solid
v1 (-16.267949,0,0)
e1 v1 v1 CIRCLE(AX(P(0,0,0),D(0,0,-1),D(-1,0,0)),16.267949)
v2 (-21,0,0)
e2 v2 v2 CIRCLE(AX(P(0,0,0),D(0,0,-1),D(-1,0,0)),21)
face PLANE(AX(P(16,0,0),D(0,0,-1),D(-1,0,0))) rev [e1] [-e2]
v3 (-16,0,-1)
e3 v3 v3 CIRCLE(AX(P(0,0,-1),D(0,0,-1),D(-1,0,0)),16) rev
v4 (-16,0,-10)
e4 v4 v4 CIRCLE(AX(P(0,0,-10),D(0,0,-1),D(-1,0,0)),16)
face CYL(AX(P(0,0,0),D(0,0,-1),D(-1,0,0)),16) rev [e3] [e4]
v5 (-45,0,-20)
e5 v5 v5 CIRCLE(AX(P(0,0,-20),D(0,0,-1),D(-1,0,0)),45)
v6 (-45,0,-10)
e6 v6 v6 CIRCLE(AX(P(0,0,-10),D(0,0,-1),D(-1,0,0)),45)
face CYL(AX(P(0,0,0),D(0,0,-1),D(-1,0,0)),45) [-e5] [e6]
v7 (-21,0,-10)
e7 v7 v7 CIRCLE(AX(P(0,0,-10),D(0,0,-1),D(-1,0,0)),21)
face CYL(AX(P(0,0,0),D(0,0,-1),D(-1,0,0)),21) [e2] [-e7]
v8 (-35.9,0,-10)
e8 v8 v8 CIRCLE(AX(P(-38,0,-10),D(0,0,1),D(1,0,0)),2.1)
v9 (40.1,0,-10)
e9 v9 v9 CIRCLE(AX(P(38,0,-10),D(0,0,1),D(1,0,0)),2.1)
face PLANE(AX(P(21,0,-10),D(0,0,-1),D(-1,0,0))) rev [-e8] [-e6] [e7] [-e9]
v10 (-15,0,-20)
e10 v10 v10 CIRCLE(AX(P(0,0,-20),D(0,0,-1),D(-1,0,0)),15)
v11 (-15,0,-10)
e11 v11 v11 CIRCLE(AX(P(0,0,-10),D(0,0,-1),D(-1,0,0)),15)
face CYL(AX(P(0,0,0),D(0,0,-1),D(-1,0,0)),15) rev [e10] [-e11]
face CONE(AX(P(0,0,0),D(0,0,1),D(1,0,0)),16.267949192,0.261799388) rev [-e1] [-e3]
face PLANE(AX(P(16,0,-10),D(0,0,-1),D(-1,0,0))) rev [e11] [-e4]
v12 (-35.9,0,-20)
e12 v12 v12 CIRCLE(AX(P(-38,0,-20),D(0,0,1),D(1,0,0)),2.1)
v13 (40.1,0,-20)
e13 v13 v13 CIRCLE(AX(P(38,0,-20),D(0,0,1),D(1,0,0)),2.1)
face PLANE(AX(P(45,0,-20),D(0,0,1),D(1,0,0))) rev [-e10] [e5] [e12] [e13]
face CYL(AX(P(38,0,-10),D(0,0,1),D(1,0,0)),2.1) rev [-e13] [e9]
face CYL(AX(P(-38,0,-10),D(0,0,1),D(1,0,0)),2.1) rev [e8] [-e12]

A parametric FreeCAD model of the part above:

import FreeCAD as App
import Part
import Sketcher
Q = App.Units.Quantity


def edges_at(feature, points):
    """Names of the edges that pass closest to the given points."""
    edges = feature.Shape.Edges
    near = lambda p: min(range(len(edges)), key=lambda i: edges[i].distToShape(Part.Vertex(*p))[0])
    return sorted({f"Edge{near(p) + 1}" for p in points})

doc = App.newDocument("Part")
params = doc.addObject("Spreadsheet::Sheet", "Params")
for row, (alias, value) in enumerate([
    ("sketch1_width", "5 mm"),
    ("sketch1_width2", "24 mm"),
    ("sketch1_width3", "30 mm"),
    ("sketch1_height", "10 mm"),
    ("revolution_angle", "360 deg"),
    ("chamfer_size", "1 mm"),
    ("chamfer_size2", "0.267949 mm"),
    ("sketch2_diameter", "4.2 mm"),
    ("hole_diameter", "4.2 mm"),
], start=1):
    params.set(f"A{row}", alias)
    params.set(f"B{row}", "=" + value)
    params.setAlias(f"B{row}", alias)

body = doc.addObject("PartDesign::Body", "Body")

# Sketch on XZ plane
sketch1 = body.newObject("Sketcher::SketchObject", "Sketch")
sketch1.AttachmentSupport = (doc.getObject("XZ_Plane"), [""])
sketch1.MapMode = "FlatFace"
sketch1.addGeometry(Part.LineSegment(App.Vector(16, -10, 0), App.Vector(16, 0, 0)), False)
sketch1.addGeometry(Part.LineSegment(App.Vector(16, 0, 0), App.Vector(21, 0, 0)), False)
sketch1.addGeometry(Part.LineSegment(App.Vector(21, 0, 0), App.Vector(21, -10, 0)), False)
sketch1.addGeometry(Part.LineSegment(App.Vector(21, -10, 0), App.Vector(45, -10, 0)), False)
sketch1.addGeometry(Part.LineSegment(App.Vector(45, -10, 0), App.Vector(45, -20, 0)), False)
sketch1.addGeometry(Part.LineSegment(App.Vector(45, -20, 0), App.Vector(15, -20, 0)), False)
sketch1.addGeometry(Part.LineSegment(App.Vector(15, -20, 0), App.Vector(15, -10, 0)), False)
sketch1.addGeometry(Part.LineSegment(App.Vector(15, -10, 0), App.Vector(16, -10, 0)), False)
sketch1.addConstraint(Sketcher.Constraint("Coincident", 0, 2, 1, 1))
sketch1.addConstraint(Sketcher.Constraint("Coincident", 1, 2, 2, 1))
sketch1.addConstraint(Sketcher.Constraint("Coincident", 2, 2, 3, 1))
sketch1.addConstraint(Sketcher.Constraint("Coincident", 3, 2, 4, 1))
sketch1.addConstraint(Sketcher.Constraint("Coincident", 4, 2, 5, 1))
sketch1.addConstraint(Sketcher.Constraint("Coincident", 5, 2, 6, 1))
sketch1.addConstraint(Sketcher.Constraint("Coincident", 6, 2, 7, 1))
sketch1.addConstraint(Sketcher.Constraint("Coincident", 7, 2, 0, 1))
sketch1.addConstraint(Sketcher.Constraint("Vertical", 0))
sketch1.addConstraint(Sketcher.Constraint("Horizontal", 1))
sketch1.addConstraint(Sketcher.Constraint("Vertical", 2))
sketch1.addConstraint(Sketcher.Constraint("Horizontal", 3))
sketch1.addConstraint(Sketcher.Constraint("Vertical", 4))
sketch1.addConstraint(Sketcher.Constraint("Horizontal", 5))
sketch1.addConstraint(Sketcher.Constraint("Vertical", 6))
sketch1.addConstraint(Sketcher.Constraint("Horizontal", 7))
sketch1.addConstraint(Sketcher.Constraint("PointOnObject", 0, 2, -1))
sketch1.addConstraint(Sketcher.Constraint("Horizontal", 3, 2, 6, 2))
sketch1.addConstraint(Sketcher.Constraint("Equal", 2, 4))
sketch1.addConstraint(Sketcher.Constraint("DistanceX", 1, 1, 1, 2, Q("5 mm")))
sketch1.addConstraint(Sketcher.Constraint("DistanceX", 3, 1, 3, 2, Q("24 mm")))
sketch1.addConstraint(Sketcher.Constraint("DistanceX", 5, 2, 5, 1, Q("30 mm")))
sketch1.addConstraint(Sketcher.Constraint("DistanceY", 0, 1, 0, 2, Q("10 mm")))
sketch1.addConstraint(Sketcher.Constraint("DistanceX", -1, 1, 0, 2, Q("16 mm")))
sketch1.setExpression("Constraints[19]", "Params.sketch1_width")
sketch1.setExpression("Constraints[20]", "Params.sketch1_width2")
sketch1.setExpression("Constraints[21]", "Params.sketch1_width3")
sketch1.setExpression("Constraints[22]", "Params.sketch1_height")
revolution = body.newObject("PartDesign::Revolution", "Revolution")
revolution.Profile = sketch1
revolution.ReferenceAxis = (sketch1, ["V_Axis"])
revolution.setExpression("Angle", "Params.revolution_angle")
doc.recompute()

chamfer = body.newObject("PartDesign::Chamfer", "Chamfer")
chamfer.Base = (revolution, edges_at(revolution, [(-16, 0, 0)]))
chamfer.ChamferType = "Two distances"
chamfer.setExpression("Size", "Params.chamfer_size")
chamfer.setExpression("Size2", "Params.chamfer_size2")

# Sketch on XY plane
sketch2 = body.newObject("Sketcher::SketchObject", "Sketch001")
sketch2.AttachmentSupport = (doc.getObject("XY_Plane"), [""])
sketch2.MapMode = "FlatFace"
sketch2.AttachmentOffset = App.Placement(App.Vector(0, 0, -10), App.Rotation())
sketch2.addGeometry(Part.Circle(App.Vector(-38, 0, 0), App.Vector(0, 0, 1), 2.1), False)
sketch2.addGeometry(Part.Circle(App.Vector(38, 0, 0), App.Vector(0, 0, 1), 2.1), False)
sketch2.addConstraint(Sketcher.Constraint("Equal", 0, 1))
sketch2.addConstraint(Sketcher.Constraint("Symmetric", 0, 3, 1, 3, -1, 1))
sketch2.addConstraint(Sketcher.Constraint("PointOnObject", 0, 3, -1))
sketch2.addConstraint(Sketcher.Constraint("Diameter", 0, Q("4.2 mm")))
sketch2.addConstraint(Sketcher.Constraint("DistanceX", 0, 3, -1, 1, Q("38 mm")))
sketch2.setExpression("Constraints[3]", "Params.sketch2_diameter")
doc.recompute()
hole = body.newObject("PartDesign::Hole", "Hole")
hole.Profile = sketch2
hole.ThreadType = "None"
hole.setExpression("Diameter", "Params.hole_diameter")
hole.DepthType = "ThroughAll"

doc.recompute()
